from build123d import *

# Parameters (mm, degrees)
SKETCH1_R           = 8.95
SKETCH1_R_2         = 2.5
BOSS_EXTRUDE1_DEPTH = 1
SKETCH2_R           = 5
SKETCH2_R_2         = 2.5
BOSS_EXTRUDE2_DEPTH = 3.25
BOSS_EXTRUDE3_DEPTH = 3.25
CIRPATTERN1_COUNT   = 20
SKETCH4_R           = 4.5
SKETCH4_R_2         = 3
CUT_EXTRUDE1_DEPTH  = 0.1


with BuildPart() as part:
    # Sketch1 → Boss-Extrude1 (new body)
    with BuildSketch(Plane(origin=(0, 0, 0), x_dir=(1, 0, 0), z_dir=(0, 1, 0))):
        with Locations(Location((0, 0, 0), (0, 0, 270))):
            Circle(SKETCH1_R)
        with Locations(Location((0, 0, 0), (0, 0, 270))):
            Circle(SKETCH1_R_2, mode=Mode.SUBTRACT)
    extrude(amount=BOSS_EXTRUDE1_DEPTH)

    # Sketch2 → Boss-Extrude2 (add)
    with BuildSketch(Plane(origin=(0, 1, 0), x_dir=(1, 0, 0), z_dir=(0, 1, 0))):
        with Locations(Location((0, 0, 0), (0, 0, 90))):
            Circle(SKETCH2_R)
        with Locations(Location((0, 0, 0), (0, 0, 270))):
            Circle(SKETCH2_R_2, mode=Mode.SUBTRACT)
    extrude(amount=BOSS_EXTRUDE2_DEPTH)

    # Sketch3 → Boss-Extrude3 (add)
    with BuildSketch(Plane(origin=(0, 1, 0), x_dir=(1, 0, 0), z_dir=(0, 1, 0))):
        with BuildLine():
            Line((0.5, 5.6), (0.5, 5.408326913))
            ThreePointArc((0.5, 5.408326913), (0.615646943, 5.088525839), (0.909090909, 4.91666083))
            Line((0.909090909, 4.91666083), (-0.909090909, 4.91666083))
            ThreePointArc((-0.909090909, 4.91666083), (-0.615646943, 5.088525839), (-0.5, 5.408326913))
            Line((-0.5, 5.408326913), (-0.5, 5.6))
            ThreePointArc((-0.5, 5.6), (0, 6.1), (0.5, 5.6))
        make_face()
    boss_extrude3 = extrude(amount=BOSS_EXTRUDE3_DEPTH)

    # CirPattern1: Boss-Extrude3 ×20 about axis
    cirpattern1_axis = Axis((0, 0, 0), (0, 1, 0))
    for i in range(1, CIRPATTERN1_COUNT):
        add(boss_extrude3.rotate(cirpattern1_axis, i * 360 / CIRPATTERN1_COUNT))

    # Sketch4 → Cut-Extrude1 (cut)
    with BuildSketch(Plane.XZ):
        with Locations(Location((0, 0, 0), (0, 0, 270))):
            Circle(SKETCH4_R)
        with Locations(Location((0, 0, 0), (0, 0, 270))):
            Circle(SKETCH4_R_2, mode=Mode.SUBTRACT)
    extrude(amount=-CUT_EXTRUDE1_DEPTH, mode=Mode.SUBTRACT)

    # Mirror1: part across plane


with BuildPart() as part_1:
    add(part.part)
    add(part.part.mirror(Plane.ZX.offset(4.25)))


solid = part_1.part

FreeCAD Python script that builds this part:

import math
import FreeCAD as App
import Part
import Sketcher
Q = App.Units.Quantity

doc = App.newDocument("Part")
body = doc.addObject("PartDesign::Body", "Body")

# Sketch on XZ plane
sketch1 = body.newObject("Sketcher::SketchObject", "Sketch")
sketch1.AttachmentSupport = (doc.getObject("XZ_Plane"), [""])
sketch1.MapMode = "FlatFace"
sketch1.addGeometry(Part.Circle(App.Vector(0, 0, 0), App.Vector(0, 0, 1), 8.9), False)
sketch1.addGeometry(Part.Circle(App.Vector(0, 0, 0), App.Vector(0, 0, 1), 2.5), False)
sketch1.addConstraint(Sketcher.Constraint("Coincident", 0, 3, -1, 1))
sketch1.addConstraint(Sketcher.Constraint("Coincident", 1, 3, -1, 1))
sketch1.addConstraint(Sketcher.Constraint("Diameter", 1, Q("5 mm")))
sketch1.addConstraint(Sketcher.Constraint("Diameter", 0, Q("17.9 mm")))
pad1 = body.newObject("PartDesign::Pad", "Pad")
pad1.Profile = sketch1
pad1.Length = 1
pad1.Reversed = True

# Sketch on XZ plane
sketch2 = body.newObject("Sketcher::SketchObject", "Sketch001")
sketch2.AttachmentSupport = (doc.getObject("XZ_Plane"), [""])
sketch2.MapMode = "FlatFace"
sketch2.AttachmentOffset = App.Placement(App.Vector(0, 0, -1), App.Rotation())
sketch2.addGeometry(Part.Circle(App.Vector(0, 0, 0), App.Vector(0, 0, 1), 5), False)
sketch2.addGeometry(Part.Circle(App.Vector(0, 0, 0), App.Vector(0, 0, 1), 2.5), False)
sketch2.addConstraint(Sketcher.Constraint("Coincident", 0, 3, -1, 1))
sketch2.addConstraint(Sketcher.Constraint("Coincident", 1, 3, -1, 1))
sketch2.addConstraint(Sketcher.Constraint("Diameter", 0, Q("10 mm")))
sketch2.addConstraint(Sketcher.Constraint("Diameter", 1, Q("5 mm")))
pad2 = body.newObject("PartDesign::Pad", "Pad001")
pad2.Profile = sketch2
pad2.Length = 3.25
pad2.Reversed = True

# Sketch on XZ plane
sketch3 = body.newObject("Sketcher::SketchObject", "Sketch002")
sketch3.AttachmentSupport = (doc.getObject("XZ_Plane"), [""])
sketch3.MapMode = "FlatFace"
sketch3.AttachmentOffset = App.Placement(App.Vector(0, 0, -1), App.Rotation())
sketch3.addGeometry(Part.LineSegment(App.Vector(0.5, -5.41, 0), App.Vector(0.5, -5.6, 0)), False)
sketch3.addGeometry(Part.ArcOfCircle(Part.Circle(App.Vector(0, -5.6, 0), App.Vector(0, 0, 1), 0.5), math.radians(180), math.radians(360)), False)
sketch3.addGeometry(Part.LineSegment(App.Vector(-0.5, -5.6, 0), App.Vector(-0.5, -5.41, 0)), False)
sketch3.addGeometry(Part.ArcOfCircle(Part.Circle(App.Vector(-1, -5.41, 0), App.Vector(0, 0, 1), 0.5), math.radians(0), math.radians(80)), False)
sketch3.addGeometry(Part.LineSegment(App.Vector(-0.91, -4.92, 0), App.Vector(0.91, -4.92, 0)), False)
sketch3.addGeometry(Part.ArcOfCircle(Part.Circle(App.Vector(1, -5.41, 0), App.Vector(0, 0, 1), 0.5), math.radians(100), math.radians(180)), False)
sketch3.addConstraint(Sketcher.Constraint("Tangent", 0, 2, 1, 2))
sketch3.addConstraint(Sketcher.Constraint("Tangent", 1, 1, 2, 1))
sketch3.addConstraint(Sketcher.Constraint("Tangent", 2, 2, 3, 1))
sketch3.addConstraint(Sketcher.Constraint("Coincident", 3, 2, 4, 1))
sketch3.addConstraint(Sketcher.Constraint("Coincident", 4, 2, 5, 1))
sketch3.addConstraint(Sketcher.Constraint("Tangent", 5, 2, 0, 1))
sketch3.addConstraint(Sketcher.Constraint("Vertical", 0))
sketch3.addConstraint(Sketcher.Constraint("Vertical", 2))
sketch3.addConstraint(Sketcher.Constraint("Horizontal", 4))
sketch3.addConstraint(Sketcher.Constraint("Equal", 1, 3))
sketch3.addConstraint(Sketcher.Constraint("Equal", 3, 5))
sketch3.addConstraint(Sketcher.Constraint("Symmetric", 3, 3, 5, 3, -2))
sketch3.addConstraint(Sketcher.Constraint("Radius", 1, Q("0.5 mm")))
sketch3.addConstraint(Sketcher.Constraint("DistanceY", 1, 3, -1, 1, Q("5.6 mm")))
sketch3.addConstraint(Sketcher.Constraint("DistanceX", 4, 1, 4, 2, Q("1.818182 mm")))
sketch3.addConstraint(Sketcher.Constraint("DistanceY", 0, 2, 0, 1, Q("0.191673 mm")))
pad3 = body.newObject("PartDesign::Pad", "Pad002")
pad3.Profile = sketch3
pad3.Length = 3.25
pad3.Reversed = True
doc.recompute()

polarpattern = body.newObject("PartDesign::PolarPattern", "PolarPattern")
polarpattern.Originals = [pad3]
polarpattern.Axis = (doc.getObject("Y_Axis"), [""])
polarpattern.Angle = 360
polarpattern.Occurrences = 20
body.Tip = polarpattern

# Sketch on XZ plane
sketch4 = body.newObject("Sketcher::SketchObject", "Sketch003")
sketch4.AttachmentSupport = (doc.getObject("XZ_Plane"), [""])
sketch4.MapMode = "FlatFace"
sketch4.addGeometry(Part.Circle(App.Vector(0, 0, 0), App.Vector(0, 0, 1), 4.5), False)
sketch4.addGeometry(Part.Circle(App.Vector(0, 0, 0), App.Vector(0, 0, 1), 3), False)
sketch4.addConstraint(Sketcher.Constraint("Coincident", 0, 3, -1, 1))
sketch4.addConstraint(Sketcher.Constraint("Coincident", 1, 3, -1, 1))
sketch4.addConstraint(Sketcher.Constraint("Diameter", 0, Q("9 mm")))
sketch4.addConstraint(Sketcher.Constraint("Diameter", 1, Q("6 mm")))
pocket1 = body.newObject("PartDesign::Pocket", "Pocket")
pocket1.Profile = sketch4
pocket1.Length = 0.1
body2 = doc.addObject("PartDesign::Body", "Body001")
doc.recompute()

body2.BaseFeature = body
doc.recompute()

mirroring = doc.addObject("Part::Mirroring", "Mirroring")
mirroring.Source = body
mirroring.Base = App.Vector(0, 4.25, 0)
mirroring.Normal = App.Vector(0, 1, 0)
body3 = doc.addObject("PartDesign::Body", "Body002")
body3.BaseFeature = mirroring
boolean = body2.newObject("PartDesign::Boolean", "Boolean")
boolean.Type = "Fuse"
boolean.addObjects([body3])
doc.recompute()
mirroring.Visibility = False

doc.recompute()
